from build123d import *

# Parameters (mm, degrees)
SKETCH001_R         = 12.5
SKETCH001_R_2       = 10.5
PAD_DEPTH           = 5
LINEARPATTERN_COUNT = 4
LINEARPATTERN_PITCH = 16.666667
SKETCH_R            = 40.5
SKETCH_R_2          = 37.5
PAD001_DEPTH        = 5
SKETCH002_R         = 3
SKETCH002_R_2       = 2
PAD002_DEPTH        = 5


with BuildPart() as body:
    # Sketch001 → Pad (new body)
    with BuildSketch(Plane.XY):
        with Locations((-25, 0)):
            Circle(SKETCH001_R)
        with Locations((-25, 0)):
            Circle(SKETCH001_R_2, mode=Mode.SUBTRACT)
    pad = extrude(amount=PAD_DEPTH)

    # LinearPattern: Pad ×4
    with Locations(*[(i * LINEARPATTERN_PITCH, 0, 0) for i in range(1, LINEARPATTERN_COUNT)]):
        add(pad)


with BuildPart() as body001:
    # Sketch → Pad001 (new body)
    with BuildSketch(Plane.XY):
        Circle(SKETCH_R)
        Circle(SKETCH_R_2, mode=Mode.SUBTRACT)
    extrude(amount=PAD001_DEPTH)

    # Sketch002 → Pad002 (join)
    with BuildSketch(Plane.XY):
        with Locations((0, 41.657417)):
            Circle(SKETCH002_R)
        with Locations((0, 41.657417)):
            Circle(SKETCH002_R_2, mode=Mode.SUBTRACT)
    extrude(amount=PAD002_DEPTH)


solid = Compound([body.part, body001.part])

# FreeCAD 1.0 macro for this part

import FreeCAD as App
import Part
import Sketcher
from FreeCAD import Vector

doc = App.newDocument("Part")
body = doc.addObject("PartDesign::Body", "Body")

# Sketch on XY plane
sketch1 = body.newObject("Sketcher::SketchObject", "Sketch")
sketch1.AttachmentSupport = (doc.getObject("XY_Plane"), [""])
sketch1.MapMode = "FlatFace"
sketch1.addGeometry([
    Part.Circle(Vector(-25, 0, 0), Vector(0, 0, 1), 12),
    Part.Circle(Vector(-25, 0, 0), Vector(0, 0, 1), 10),
], False)
sketch1.addConstraint([
    Sketcher.Constraint("Coincident", 1, 3, 0, 3),
    Sketcher.Constraint("PointOnObject", 0, 3, -1),
    Sketcher.Constraint("Diameter", 0, 25.0),
    Sketcher.Constraint("Diameter", 1, 21.0),
    Sketcher.Constraint("DistanceX", 0, 3, -1, 1, 25.0),
])
pad1 = body.newObject("PartDesign::Pad", "Pad")
pad1.Profile = sketch1
pad1.Length = 5
doc.recompute()

linearpattern = body.newObject("PartDesign::LinearPattern", "LinearPattern")
linearpattern.Originals = [pad1]
linearpattern.Direction = (doc.getObject("X_Axis"), [""])
linearpattern.Mode = "offset"
linearpattern.Offset = 16.666667
linearpattern.Occurrences = 4
body.Tip = linearpattern
body2 = doc.addObject("PartDesign::Body", "Body001")

# Sketch on XY plane
sketch2 = body2.newObject("Sketcher::SketchObject", "Sketch001")
sketch2.AttachmentSupport = (doc.getObject("XY_Plane001"), [""])
sketch2.MapMode = "FlatFace"
sketch2.addGeometry([
    Part.Circle(Vector(0, 0, 0), Vector(0, 0, 1), 40),
    Part.Circle(Vector(0, 0, 0), Vector(0, 0, 1), 38),
], False)
sketch2.addConstraint([
    Sketcher.Constraint("Coincident", 0, 3, -1, 1),
    Sketcher.Constraint("Coincident", 1, 3, -1, 1),
    Sketcher.Constraint("Diameter", 0, 81.0),
    Sketcher.Constraint("Diameter", 1, 75.0),
])
pad2 = body2.newObject("PartDesign::Pad", "Pad001")
pad2.Profile = sketch2
pad2.Length = 5

# Sketch on XY plane
sketch3 = body2.newObject("Sketcher::SketchObject", "Sketch002")
sketch3.AttachmentSupport = (doc.getObject("XY_Plane001"), [""])
sketch3.MapMode = "FlatFace"
sketch3.addGeometry([
    Part.Circle(Vector(0, 41.7, 0), Vector(0, 0, 1), 3),
    Part.Circle(Vector(0, 41.7, 0), Vector(0, 0, 1), 2),
], False)
sketch3.addConstraint([
    Sketcher.Constraint("Coincident", 1, 3, 0, 3),
    Sketcher.Constraint("PointOnObject", 0, 3, -2),
    Sketcher.Constraint("Diameter", 0, 6.0),
    Sketcher.Constraint("Diameter", 1, 4.0),
    Sketcher.Constraint("DistanceY", -1, 1, 0, 3, 41.657417),
])
pad3 = body2.newObject("PartDesign::Pad", "Pad002")
pad3.Profile = sketch3
pad3.Length = 5

doc.recompute()
